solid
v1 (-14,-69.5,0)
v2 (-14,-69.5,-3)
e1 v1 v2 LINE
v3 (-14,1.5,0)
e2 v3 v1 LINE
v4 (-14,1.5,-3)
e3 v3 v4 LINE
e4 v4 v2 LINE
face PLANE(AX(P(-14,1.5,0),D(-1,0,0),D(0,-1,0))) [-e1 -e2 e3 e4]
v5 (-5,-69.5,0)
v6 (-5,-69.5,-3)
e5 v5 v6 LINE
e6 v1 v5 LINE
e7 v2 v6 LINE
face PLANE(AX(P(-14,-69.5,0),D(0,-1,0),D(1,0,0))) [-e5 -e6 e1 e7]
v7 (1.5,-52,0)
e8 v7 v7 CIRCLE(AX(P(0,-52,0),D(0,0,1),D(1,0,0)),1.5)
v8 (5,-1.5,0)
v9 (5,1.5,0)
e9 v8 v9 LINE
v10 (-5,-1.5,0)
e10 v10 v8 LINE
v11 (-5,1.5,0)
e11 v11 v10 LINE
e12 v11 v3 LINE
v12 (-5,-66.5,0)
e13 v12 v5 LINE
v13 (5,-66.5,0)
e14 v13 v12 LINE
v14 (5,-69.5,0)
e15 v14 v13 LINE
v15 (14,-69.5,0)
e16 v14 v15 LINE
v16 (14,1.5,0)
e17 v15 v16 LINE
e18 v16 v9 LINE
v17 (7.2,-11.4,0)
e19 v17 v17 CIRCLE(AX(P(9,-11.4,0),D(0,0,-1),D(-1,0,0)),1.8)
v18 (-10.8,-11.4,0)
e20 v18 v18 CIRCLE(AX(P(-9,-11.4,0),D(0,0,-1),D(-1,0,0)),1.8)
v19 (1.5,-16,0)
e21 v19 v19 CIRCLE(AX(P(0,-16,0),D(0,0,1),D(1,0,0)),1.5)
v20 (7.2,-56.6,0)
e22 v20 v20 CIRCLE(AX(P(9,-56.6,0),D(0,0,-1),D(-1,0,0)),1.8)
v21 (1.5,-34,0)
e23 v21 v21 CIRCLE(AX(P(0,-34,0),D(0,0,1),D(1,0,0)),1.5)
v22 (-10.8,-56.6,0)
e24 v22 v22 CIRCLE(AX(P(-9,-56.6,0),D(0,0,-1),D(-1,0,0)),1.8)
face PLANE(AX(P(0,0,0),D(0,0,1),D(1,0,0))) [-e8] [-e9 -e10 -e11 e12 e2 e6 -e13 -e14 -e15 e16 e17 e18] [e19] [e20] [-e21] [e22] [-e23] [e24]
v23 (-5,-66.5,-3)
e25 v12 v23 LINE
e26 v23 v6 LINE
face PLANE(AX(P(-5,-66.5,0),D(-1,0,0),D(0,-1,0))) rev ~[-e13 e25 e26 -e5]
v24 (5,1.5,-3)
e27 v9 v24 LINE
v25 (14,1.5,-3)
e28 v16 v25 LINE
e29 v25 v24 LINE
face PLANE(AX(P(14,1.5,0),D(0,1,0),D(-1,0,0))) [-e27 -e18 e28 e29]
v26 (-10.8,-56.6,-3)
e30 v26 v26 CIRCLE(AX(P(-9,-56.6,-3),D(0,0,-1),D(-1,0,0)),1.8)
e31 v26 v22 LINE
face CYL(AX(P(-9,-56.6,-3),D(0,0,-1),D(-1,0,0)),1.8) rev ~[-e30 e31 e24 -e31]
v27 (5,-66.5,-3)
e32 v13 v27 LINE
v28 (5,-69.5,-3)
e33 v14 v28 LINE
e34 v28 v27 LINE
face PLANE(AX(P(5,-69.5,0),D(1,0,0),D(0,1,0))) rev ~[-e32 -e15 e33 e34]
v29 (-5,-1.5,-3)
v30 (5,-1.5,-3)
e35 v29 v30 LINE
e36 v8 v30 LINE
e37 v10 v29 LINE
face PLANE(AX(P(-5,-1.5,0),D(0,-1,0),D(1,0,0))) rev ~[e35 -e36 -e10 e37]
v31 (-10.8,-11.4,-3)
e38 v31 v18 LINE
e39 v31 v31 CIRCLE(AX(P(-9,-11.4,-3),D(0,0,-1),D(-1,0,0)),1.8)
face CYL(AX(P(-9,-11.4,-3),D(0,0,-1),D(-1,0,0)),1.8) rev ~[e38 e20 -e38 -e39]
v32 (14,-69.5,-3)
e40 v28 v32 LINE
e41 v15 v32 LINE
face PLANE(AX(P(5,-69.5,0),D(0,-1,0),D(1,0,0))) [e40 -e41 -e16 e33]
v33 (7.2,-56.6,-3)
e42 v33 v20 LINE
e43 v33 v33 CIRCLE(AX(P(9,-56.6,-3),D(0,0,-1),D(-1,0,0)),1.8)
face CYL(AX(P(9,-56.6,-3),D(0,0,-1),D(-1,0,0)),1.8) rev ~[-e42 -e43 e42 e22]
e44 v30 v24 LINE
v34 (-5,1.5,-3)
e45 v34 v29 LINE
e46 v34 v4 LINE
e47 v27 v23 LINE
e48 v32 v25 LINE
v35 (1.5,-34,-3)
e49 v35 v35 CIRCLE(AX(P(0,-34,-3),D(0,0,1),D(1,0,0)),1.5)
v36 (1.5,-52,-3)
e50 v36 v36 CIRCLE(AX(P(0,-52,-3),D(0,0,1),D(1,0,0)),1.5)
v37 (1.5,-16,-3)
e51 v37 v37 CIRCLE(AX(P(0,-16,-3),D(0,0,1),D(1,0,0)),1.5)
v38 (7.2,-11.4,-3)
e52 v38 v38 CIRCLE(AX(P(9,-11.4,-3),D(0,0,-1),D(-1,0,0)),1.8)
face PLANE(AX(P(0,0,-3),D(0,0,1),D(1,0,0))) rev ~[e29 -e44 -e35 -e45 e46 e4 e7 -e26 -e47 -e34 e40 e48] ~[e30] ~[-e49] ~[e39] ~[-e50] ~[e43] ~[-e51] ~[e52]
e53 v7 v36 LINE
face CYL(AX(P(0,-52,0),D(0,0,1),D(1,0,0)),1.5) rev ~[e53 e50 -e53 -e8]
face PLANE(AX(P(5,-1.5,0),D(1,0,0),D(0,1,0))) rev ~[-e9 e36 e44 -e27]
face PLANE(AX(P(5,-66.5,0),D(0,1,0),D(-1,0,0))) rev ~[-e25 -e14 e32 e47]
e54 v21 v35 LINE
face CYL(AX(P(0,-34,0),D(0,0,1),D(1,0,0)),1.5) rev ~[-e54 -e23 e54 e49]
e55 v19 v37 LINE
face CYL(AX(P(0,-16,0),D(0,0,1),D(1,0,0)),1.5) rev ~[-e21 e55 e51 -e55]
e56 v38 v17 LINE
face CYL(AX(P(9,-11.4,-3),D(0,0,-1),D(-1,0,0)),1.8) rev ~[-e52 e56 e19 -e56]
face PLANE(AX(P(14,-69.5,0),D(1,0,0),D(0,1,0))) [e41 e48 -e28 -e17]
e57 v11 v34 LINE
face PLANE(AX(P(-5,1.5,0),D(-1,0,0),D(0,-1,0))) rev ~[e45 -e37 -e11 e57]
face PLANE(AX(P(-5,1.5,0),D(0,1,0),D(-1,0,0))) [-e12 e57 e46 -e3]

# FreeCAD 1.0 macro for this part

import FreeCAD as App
import Part
import Sketcher
from FreeCAD import Vector

doc = App.newDocument("Part")
body = doc.addObject("PartDesign::Body", "Body")

sketch1 = body.newObject("Sketcher::SketchObject", "Sketch")
sketch1.AttachmentSupport = (doc.getObject("XY_Plane"), [""])
sketch1.MapMode = "FlatFace"
sketch1.addGeometry([
    Part.LineSegment(Vector(14, 1.5, 0), Vector(5, 1.5, 0)),
    Part.LineSegment(Vector(5, 1.5, 0), Vector(5, -1.5, 0)),
    Part.LineSegment(Vector(5, -1.5, 0), Vector(-5, -1.5, 0)),
    Part.LineSegment(Vector(-5, -1.5, 0), Vector(-5, 1.5, 0)),
    Part.LineSegment(Vector(-5, 1.5, 0), Vector(-14, 1.5, 0)),
    Part.LineSegment(Vector(-14, 1.5, 0), Vector(-14, -69.5, 0)),
    Part.LineSegment(Vector(-14, -69.5, 0), Vector(-5, -69.5, 0)),
    Part.LineSegment(Vector(-5, -69.5, 0), Vector(-5, -66.5, 0)),
    Part.LineSegment(Vector(-5, -66.5, 0), Vector(5, -66.5, 0)),
    Part.LineSegment(Vector(5, -66.5, 0), Vector(5, -69.5, 0)),
    Part.LineSegment(Vector(5, -69.5, 0), Vector(14, -69.5, 0)),
    Part.LineSegment(Vector(14, -69.5, 0), Vector(14, 1.5, 0)),
], False)
sketch1.addConstraint([
    Sketcher.Constraint("Coincident", 0, 2, 1, 1),
    Sketcher.Constraint("Coincident", 1, 2, 2, 1),
    Sketcher.Constraint("Coincident", 2, 2, 3, 1),
    Sketcher.Constraint("Coincident", 3, 2, 4, 1),
    Sketcher.Constraint("Coincident", 4, 2, 5, 1),
    Sketcher.Constraint("Coincident", 5, 2, 6, 1),
    Sketcher.Constraint("Coincident", 6, 2, 7, 1),
    Sketcher.Constraint("Coincident", 7, 2, 8, 1),
    Sketcher.Constraint("Coincident", 8, 2, 9, 1),
    Sketcher.Constraint("Coincident", 9, 2, 10, 1),
    Sketcher.Constraint("Coincident", 10, 2, 11, 1),
    Sketcher.Constraint("Coincident", 11, 2, 0, 1),
    Sketcher.Constraint("Horizontal", 0),
    Sketcher.Constraint("Vertical", 1),
    Sketcher.Constraint("Horizontal", 2),
    Sketcher.Constraint("Vertical", 3),
    Sketcher.Constraint("Horizontal", 4),
    Sketcher.Constraint("Vertical", 5),
    Sketcher.Constraint("Horizontal", 6),
    Sketcher.Constraint("Vertical", 7),
    Sketcher.Constraint("Horizontal", 8),
    Sketcher.Constraint("Vertical", 9),
    Sketcher.Constraint("Horizontal", 10),
    Sketcher.Constraint("Vertical", 11),
    Sketcher.Constraint("Symmetric", 0, 2, 2, 2, -1, 1),
    Sketcher.Constraint("Symmetric", 6, 2, 9, 2, -2),
    Sketcher.Constraint("Symmetric", 4, 2, 11, 2, -2),
    Sketcher.Constraint("Vertical", 3, 2, 6, 2),
    Sketcher.Constraint("Equal", 3, 7),
    Sketcher.Constraint("DistanceX", 0, 2, 0, 1, 9.0),
    Sketcher.Constraint("DistanceX", 2, 2, 2, 1, 10.0),
    Sketcher.Constraint("DistanceY", 1, 2, 1, 1, 3.0),
    Sketcher.Constraint("DistanceY", 5, 2, 5, 1, 71.0),
])
pad1 = body.newObject("PartDesign::Pad", "Pad")
pad1.Profile = sketch1
pad1.Length = 3
pad1.Reversed = True

sketch2 = body.newObject("Sketcher::SketchObject", "Sketch001")
sketch2.AttachmentSupport = (doc.getObject("XY_Plane"), [""])
sketch2.MapMode = "FlatFace"
sketch2.addGeometry([
    Part.Circle(Vector(0, -34, 0), Vector(0, 0, 1), 1.5),
    Part.Circle(Vector(0, -16, 0), Vector(0, 0, 1), 1.5),
    Part.Circle(Vector(0, -52, 0), Vector(0, 0, 1), 1.5),
], False)
sketch2.addConstraint([
    Sketcher.Constraint("Equal", 0, 1),
    Sketcher.Constraint("Equal", 1, 2),
    Sketcher.Constraint("PointOnObject", 0, 3, -2),
    Sketcher.Constraint("PointOnObject", 1, 3, -2),
    Sketcher.Constraint("PointOnObject", 2, 3, -2),
    Sketcher.Constraint("Diameter", 0, 3.0),
    Sketcher.Constraint("DistanceY", 0, 3, 1, 3, 18.0),
    Sketcher.Constraint("DistanceY", 2, 3, 0, 3, 18.0),
    Sketcher.Constraint("DistanceY", 0, 3, -1, 1, 34.0),
])
pocket1 = body.newObject("PartDesign::Pocket", "Pocket")
pocket1.Profile = sketch2
pocket1.Length = 3

sketch3 = body.newObject("Sketcher::SketchObject", "Sketch002")
sketch3.AttachmentSupport = (doc.getObject("XY_Plane"), [""])
sketch3.MapMode = "FlatFace"
sketch3.AttachmentOffset = App.Placement(Vector(0, 0, -3), App.Rotation())
sketch3.addGeometry([
    Part.Circle(Vector(9, -56.6, 0), Vector(0, 0, 1), 1.8),
    Part.Circle(Vector(9, -11.4, 0), Vector(0, 0, 1), 1.8),
    Part.Circle(Vector(-9, -11.4, 0), Vector(0, 0, 1), 1.8),
    Part.Circle(Vector(-9, -56.6, 0), Vector(0, 0, 1), 1.8),
], False)
sketch3.addConstraint([
    Sketcher.Constraint("Equal", 0, 1),
    Sketcher.Constraint("Equal", 1, 2),
    Sketcher.Constraint("Equal", 2, 3),
    Sketcher.Constraint("Symmetric", 1, 3, 2, 3, -2),
    Sketcher.Constraint("Symmetric", 0, 3, 3, 3, -2),
    Sketcher.Constraint("Vertical", 0, 3, 1, 3),
    Sketcher.Constraint("Diameter", 0, 3.6),
    Sketcher.Constraint("DistanceX", -1, 1, 0, 3, 9.0),
    Sketcher.Constraint("DistanceY", 0, 3, -1, 1, 56.6),
    Sketcher.Constraint("DistanceY", 1, 3, -1, 1, 11.4),
])
pocket2 = body.newObject("PartDesign::Pocket", "Pocket001")
pocket2.Profile = sketch3
pocket2.Length = 3
pocket2.Reversed = True

doc.recompute()
